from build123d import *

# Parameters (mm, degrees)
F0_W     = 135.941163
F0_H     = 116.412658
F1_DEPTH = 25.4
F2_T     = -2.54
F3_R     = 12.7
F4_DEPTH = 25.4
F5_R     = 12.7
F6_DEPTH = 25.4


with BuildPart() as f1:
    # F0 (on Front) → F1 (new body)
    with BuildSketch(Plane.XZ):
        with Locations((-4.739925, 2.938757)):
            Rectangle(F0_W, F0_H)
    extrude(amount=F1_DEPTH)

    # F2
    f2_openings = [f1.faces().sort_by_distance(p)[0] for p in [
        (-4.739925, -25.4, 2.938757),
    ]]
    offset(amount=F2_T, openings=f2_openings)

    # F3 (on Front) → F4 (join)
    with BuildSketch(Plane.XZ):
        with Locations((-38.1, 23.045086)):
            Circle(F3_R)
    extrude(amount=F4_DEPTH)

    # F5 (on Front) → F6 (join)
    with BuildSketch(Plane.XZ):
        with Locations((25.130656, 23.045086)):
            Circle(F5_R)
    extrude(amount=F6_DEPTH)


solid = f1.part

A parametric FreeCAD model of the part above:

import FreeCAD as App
import Part
import Sketcher

V = App.Vector
Q = App.Units.Quantity


def faces_at(feature, points):
    """Names of the faces that lie closest to the given points."""
    faces = feature.Shape.Faces
    near = lambda p: min(range(len(faces)), key=lambda i: faces[i].distToShape(Part.Vertex(*p))[0])
    return sorted({f"Face{near(p) + 1}" for p in points})

doc = App.newDocument("Part")
body = doc.addObject("PartDesign::Body", "Body")

# Sketch on XZ plane
sketch1 = body.newObject("Sketcher::SketchObject", "Sketch")
sketch1.AttachmentSupport = (doc.getObject("XZ_Plane"), [""])
sketch1.MapMode = "FlatFace"
sketch1.addGeometry([
    Part.LineSegment(V(-73, 61, 0), V(-73, -55, 0)),
    Part.LineSegment(V(-73, -55, 0), V(63, -55, 0)),
    Part.LineSegment(V(63, -55, 0), V(63, 61, 0)),
    Part.LineSegment(V(63, 61, 0), V(-73, 61, 0)),
], False)
sketch1.addConstraint([
    Sketcher.Constraint("Coincident", 0, 2, 1, 1),
    Sketcher.Constraint("Coincident", 1, 2, 2, 1),
    Sketcher.Constraint("Coincident", 2, 2, 3, 1),
    Sketcher.Constraint("Coincident", 3, 2, 0, 1),
    Sketcher.Constraint("Vertical", 0),
    Sketcher.Constraint("Horizontal", 1),
    Sketcher.Constraint("Vertical", 2),
    Sketcher.Constraint("Horizontal", 3),
    Sketcher.Constraint("DistanceX", 1, 1, 1, 2, Q("135.941163 mm")),
    Sketcher.Constraint("DistanceY", 0, 2, 0, 1, Q("116.412658 mm")),
    Sketcher.Constraint("DistanceX", 0, 2, -1, 1, Q("72.710506 mm")),
    Sketcher.Constraint("DistanceY", 0, 2, -1, 1, Q("55.267572 mm")),
])
pad1 = body.newObject("PartDesign::Pad", "Pad")
pad1.Profile = sketch1
pad1.Length = Q("1 in")
doc.recompute()

thickness = body.newObject("PartDesign::Thickness", "Thickness")
thickness.Base = (pad1, faces_at(pad1, [(-4.74, -25.4, 2.939)]))
thickness.Value = Q("0.1 in")
thickness.Reversed = True
thickness.Join = "Arc"

# Sketch on XZ plane
sketch2 = body.newObject("Sketcher::SketchObject", "Sketch001")
sketch2.AttachmentSupport = (doc.getObject("XZ_Plane"), [""])
sketch2.MapMode = "FlatFace"
sketch2.addGeometry(Part.Circle(V(-38, 23, 0), V(0, 0, 1), 13), False)
sketch2.addConstraint([
    Sketcher.Constraint("Diameter", 0, Q("1 in")),
    Sketcher.Constraint("DistanceX", 0, 3, -1, 1, Q("1.5 in")),
    Sketcher.Constraint("DistanceY", -1, 1, 0, 3, Q("23.045086 mm")),
])
pad2 = body.newObject("PartDesign::Pad", "Pad001")
pad2.Profile = sketch2
pad2.Length = Q("1 in")

# Sketch on XZ plane
sketch3 = body.newObject("Sketcher::SketchObject", "Sketch002")
sketch3.AttachmentSupport = (doc.getObject("XZ_Plane"), [""])
sketch3.MapMode = "FlatFace"
sketch3.addGeometry(Part.Circle(V(25, 23, 0), V(0, 0, 1), 13), False)
sketch3.addConstraint([
    Sketcher.Constraint("Diameter", 0, Q("1 in")),
    Sketcher.Constraint("DistanceX", -1, 1, 0, 3, Q("25.130656 mm")),
    Sketcher.Constraint("DistanceY", -1, 1, 0, 3, Q("23.045086 mm")),
])
pad3 = body.newObject("PartDesign::Pad", "Pad002")
pad3.Profile = sketch3
pad3.Length = Q("1 in")

doc.recompute()
